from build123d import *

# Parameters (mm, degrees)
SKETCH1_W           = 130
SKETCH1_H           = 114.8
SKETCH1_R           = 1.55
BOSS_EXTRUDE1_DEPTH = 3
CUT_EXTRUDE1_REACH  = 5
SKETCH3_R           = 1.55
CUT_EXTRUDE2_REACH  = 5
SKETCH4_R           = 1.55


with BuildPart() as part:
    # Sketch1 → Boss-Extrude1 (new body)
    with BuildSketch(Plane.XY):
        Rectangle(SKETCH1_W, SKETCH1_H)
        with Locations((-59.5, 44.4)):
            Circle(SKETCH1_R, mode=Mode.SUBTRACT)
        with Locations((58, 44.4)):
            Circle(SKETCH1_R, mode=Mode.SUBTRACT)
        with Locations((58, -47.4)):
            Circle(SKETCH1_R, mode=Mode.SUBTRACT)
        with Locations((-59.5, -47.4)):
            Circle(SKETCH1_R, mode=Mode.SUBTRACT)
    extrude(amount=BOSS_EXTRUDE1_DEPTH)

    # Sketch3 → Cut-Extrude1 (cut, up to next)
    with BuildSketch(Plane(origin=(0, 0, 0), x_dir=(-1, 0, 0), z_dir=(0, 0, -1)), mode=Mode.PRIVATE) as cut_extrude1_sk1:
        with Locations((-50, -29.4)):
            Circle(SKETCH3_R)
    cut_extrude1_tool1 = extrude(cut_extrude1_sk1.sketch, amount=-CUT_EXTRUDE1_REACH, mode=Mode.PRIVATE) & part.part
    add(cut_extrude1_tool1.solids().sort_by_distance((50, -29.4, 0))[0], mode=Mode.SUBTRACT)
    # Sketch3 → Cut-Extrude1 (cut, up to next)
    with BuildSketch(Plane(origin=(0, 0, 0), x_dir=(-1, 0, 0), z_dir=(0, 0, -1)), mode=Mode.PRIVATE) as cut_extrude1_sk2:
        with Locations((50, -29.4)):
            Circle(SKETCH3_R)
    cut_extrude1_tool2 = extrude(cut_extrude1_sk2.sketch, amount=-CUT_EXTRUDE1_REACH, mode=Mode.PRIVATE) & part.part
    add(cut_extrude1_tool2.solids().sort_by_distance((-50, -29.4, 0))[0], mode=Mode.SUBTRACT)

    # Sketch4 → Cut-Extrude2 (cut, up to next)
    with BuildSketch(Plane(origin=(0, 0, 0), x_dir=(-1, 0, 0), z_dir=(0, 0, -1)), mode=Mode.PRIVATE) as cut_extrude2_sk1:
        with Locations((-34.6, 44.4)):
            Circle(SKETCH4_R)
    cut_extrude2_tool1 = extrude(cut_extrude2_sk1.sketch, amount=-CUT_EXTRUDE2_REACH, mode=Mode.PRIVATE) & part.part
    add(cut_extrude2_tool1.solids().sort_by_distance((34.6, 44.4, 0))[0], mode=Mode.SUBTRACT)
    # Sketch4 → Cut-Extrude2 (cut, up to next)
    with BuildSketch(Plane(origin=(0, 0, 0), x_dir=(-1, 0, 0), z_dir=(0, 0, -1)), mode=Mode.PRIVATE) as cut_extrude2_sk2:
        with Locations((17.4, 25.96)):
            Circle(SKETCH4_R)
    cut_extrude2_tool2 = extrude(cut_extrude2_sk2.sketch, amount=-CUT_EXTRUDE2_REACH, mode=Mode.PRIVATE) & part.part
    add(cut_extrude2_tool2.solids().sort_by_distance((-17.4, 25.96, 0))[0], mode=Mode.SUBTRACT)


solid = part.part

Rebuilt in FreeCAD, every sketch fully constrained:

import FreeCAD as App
import Part
import Sketcher


def add_polygon(sketch, points):
    """Adds a closed chain of lines whose ends are joined by coincident constraints."""
    first, n = sketch.GeometryCount, len(points)
    for a, b in zip(points, points[1:] + points[:1]):
        sketch.addGeometry(Part.LineSegment(App.Vector(*a, 0), App.Vector(*b, 0)), False)
    for i in range(n):
        sketch.addConstraint(Sketcher.Constraint("Coincident", first + i, 2, first + (i + 1) % n, 1))

doc = App.newDocument("Part")
body = doc.addObject("PartDesign::Body", "Body")

# Sketch on XY plane
sketch1 = body.newObject("Sketcher::SketchObject", "Sketch")
sketch1.AttachmentSupport = (doc.getObject("XY_Plane"), [""])
sketch1.MapMode = "FlatFace"
add_polygon(sketch1, [(-65, 57.4), (-65, -57.4), (65, -57.4), (65, 57.4)])  # lines 0-3
sketch1.addGeometry(Part.Circle(App.Vector(-59.5, -47.4, 0), App.Vector(0, 0, 1), 1.6), False)  # 4
sketch1.addGeometry(Part.Circle(App.Vector(58, -47.4, 0), App.Vector(0, 0, 1), 1.6), False)  # 5
sketch1.addGeometry(Part.Circle(App.Vector(-59.5, 44.4, 0), App.Vector(0, 0, 1), 1.6), False)  # 6
sketch1.addGeometry(Part.Circle(App.Vector(58, 44.4, 0), App.Vector(0, 0, 1), 1.6), False)  # 7
sketch1.addConstraint([
    Sketcher.Constraint("Vertical", 0),
    Sketcher.Constraint("Horizontal", 1),
    Sketcher.Constraint("Vertical", 2),
    Sketcher.Constraint("Horizontal", 3),
    Sketcher.Constraint("Equal", 4, 5),
    Sketcher.Constraint("Equal", 5, 6),
    Sketcher.Constraint("Equal", 6, 7),
    Sketcher.Constraint("Symmetric", 0, 2, 2, 2, -1, 1),
    Sketcher.Constraint("Horizontal", 4, 3, 5, 3),
    Sketcher.Constraint("Horizontal", 6, 3, 7, 3),
    Sketcher.Constraint("Vertical", 4, 3, 6, 3),
    Sketcher.Constraint("Vertical", 5, 3, 7, 3),
    Sketcher.Constraint("Diameter", 4, 3.1),
    Sketcher.Constraint("DistanceX", 1, 1, 1, 2, 130.0),
    Sketcher.Constraint("DistanceY", 0, 2, 0, 1, 114.8),
    Sketcher.Constraint("DistanceX", -1, 1, 5, 3, 58.0),
    Sketcher.Constraint("DistanceY", 0, 2, 4, 3, 10.0),
    Sketcher.Constraint("DistanceY", 7, 3, 2, 2, 13.0),
    Sketcher.Constraint("DistanceX", 4, 3, -1, 1, 59.5),
])
pad1 = body.newObject("PartDesign::Pad", "Pad")
pad1.Profile = sketch1
pad1.Length = 3

# Sketch on XY plane
sketch2 = body.newObject("Sketcher::SketchObject", "Sketch001")
sketch2.AttachmentSupport = (doc.getObject("XY_Plane"), [""])
sketch2.MapMode = "FlatFace"
sketch2.addGeometry(Part.Circle(App.Vector(50, -29.4, 0), App.Vector(0, 0, 1), 1.6), False)
sketch2.addConstraint([
    Sketcher.Constraint("Diameter", 0, 3.1),
    Sketcher.Constraint("DistanceX", -1, 1, 0, 3, 50.0),
    Sketcher.Constraint("DistanceY", 0, 3, -1, 1, 29.4),
])
pocket1 = body.newObject("PartDesign::Pocket", "Pocket")
pocket1.Profile = sketch2
pocket1.Type = "UpToFirst"
pocket1.Reversed = True

# Sketch on XY plane
sketch3 = body.newObject("Sketcher::SketchObject", "Sketch002")
sketch3.AttachmentSupport = (doc.getObject("XY_Plane"), [""])
sketch3.MapMode = "FlatFace"
sketch3.addGeometry(Part.Circle(App.Vector(-50, -29.4, 0), App.Vector(0, 0, 1), 1.6), False)
sketch3.addConstraint([
    Sketcher.Constraint("Diameter", 0, 3.1),
    Sketcher.Constraint("DistanceX", 0, 3, -1, 1, 50.0),
    Sketcher.Constraint("DistanceY", 0, 3, -1, 1, 29.4),
])
pocket2 = body.newObject("PartDesign::Pocket", "Pocket001")
pocket2.Profile = sketch3
pocket2.Type = "UpToFirst"
pocket2.Reversed = True

# Sketch on XY plane
sketch4 = body.newObject("Sketcher::SketchObject", "Sketch003")
sketch4.AttachmentSupport = (doc.getObject("XY_Plane"), [""])
sketch4.MapMode = "FlatFace"
sketch4.addGeometry(Part.Circle(App.Vector(34.6, 44.4, 0), App.Vector(0, 0, 1), 1.6), False)
sketch4.addConstraint([
    Sketcher.Constraint("Diameter", 0, 3.1),
    Sketcher.Constraint("DistanceX", -1, 1, 0, 3, 34.6),
    Sketcher.Constraint("DistanceY", -1, 1, 0, 3, 44.4),
])
pocket3 = body.newObject("PartDesign::Pocket", "Pocket002")
pocket3.Profile = sketch4
pocket3.Type = "UpToFirst"
pocket3.Reversed = True

# Sketch on XY plane
sketch5 = body.newObject("Sketcher::SketchObject", "Sketch004")
sketch5.AttachmentSupport = (doc.getObject("XY_Plane"), [""])
sketch5.MapMode = "FlatFace"
sketch5.addGeometry(Part.Circle(App.Vector(-17.4, 26, 0), App.Vector(0, 0, 1), 1.6), False)
sketch5.addConstraint([
    Sketcher.Constraint("Diameter", 0, 3.1),
    Sketcher.Constraint("DistanceX", 0, 3, -1, 1, 17.4),
    Sketcher.Constraint("DistanceY", -1, 1, 0, 3, 25.96),
])
pocket4 = body.newObject("PartDesign::Pocket", "Pocket003")
pocket4.Profile = sketch5
pocket4.Type = "UpToFirst"
pocket4.Reversed = True

doc.recompute()
